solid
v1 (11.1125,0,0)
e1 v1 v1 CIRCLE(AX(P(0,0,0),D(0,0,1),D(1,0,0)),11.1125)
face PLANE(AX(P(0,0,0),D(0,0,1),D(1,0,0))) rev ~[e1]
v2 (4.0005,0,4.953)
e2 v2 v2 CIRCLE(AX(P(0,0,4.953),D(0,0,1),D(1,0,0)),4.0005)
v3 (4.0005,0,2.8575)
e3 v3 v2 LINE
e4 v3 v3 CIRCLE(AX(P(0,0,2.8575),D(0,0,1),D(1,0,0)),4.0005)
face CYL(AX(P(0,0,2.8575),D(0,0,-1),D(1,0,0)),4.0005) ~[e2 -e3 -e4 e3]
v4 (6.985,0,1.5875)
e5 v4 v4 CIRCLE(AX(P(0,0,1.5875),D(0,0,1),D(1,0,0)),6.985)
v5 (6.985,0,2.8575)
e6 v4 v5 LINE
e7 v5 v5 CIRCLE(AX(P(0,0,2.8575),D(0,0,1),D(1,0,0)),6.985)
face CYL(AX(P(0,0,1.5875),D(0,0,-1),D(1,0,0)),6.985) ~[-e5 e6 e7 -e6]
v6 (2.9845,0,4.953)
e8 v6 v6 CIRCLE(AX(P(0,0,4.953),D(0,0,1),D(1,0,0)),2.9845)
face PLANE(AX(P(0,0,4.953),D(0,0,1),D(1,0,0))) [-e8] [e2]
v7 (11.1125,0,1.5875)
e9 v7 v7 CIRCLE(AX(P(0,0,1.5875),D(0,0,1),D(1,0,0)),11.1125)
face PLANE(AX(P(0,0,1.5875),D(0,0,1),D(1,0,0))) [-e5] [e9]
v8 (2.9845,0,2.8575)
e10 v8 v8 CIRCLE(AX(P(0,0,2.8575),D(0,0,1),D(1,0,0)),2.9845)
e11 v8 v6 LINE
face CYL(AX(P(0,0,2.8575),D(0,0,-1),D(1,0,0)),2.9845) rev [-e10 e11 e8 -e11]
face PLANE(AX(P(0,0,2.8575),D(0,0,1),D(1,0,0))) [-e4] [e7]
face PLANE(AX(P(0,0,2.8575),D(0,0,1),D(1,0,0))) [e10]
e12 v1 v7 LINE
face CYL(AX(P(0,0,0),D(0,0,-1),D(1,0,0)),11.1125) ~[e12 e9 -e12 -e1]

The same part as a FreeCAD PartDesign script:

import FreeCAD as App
import Part
import Sketcher

V = App.Vector
Q = App.Units.Quantity

doc = App.newDocument("Part")
body = doc.addObject("PartDesign::Body", "Body")

sketch1 = body.newObject("Sketcher::SketchObject", "Sketch")
sketch1.AttachmentSupport = (doc.getObject("XY_Plane"), [""])
sketch1.MapMode = "FlatFace"
sketch1.addGeometry(Part.Circle(V(0, 0, 0), V(0, 0, 1), 11), False)
sketch1.addConstraint([
    Sketcher.Constraint("Coincident", 0, 3, -1, 1),
    Sketcher.Constraint("Diameter", 0, Q("0.875 in")),
])
pad1 = body.newObject("PartDesign::Pad", "Pad")
pad1.Profile = sketch1
pad1.Length = Q("0.0625 in")

sketch2 = body.newObject("Sketcher::SketchObject", "Sketch001")
sketch2.AttachmentSupport = (doc.getObject("XY_Plane"), [""])
sketch2.MapMode = "FlatFace"
sketch2.AttachmentOffset = App.Placement(V(0, 0, 0.0625 * 25.4), App.Rotation())
sketch2.addGeometry(Part.Circle(V(0, 0, 0), V(0, 0, 1), 7), False)
sketch2.addConstraint([
    Sketcher.Constraint("Coincident", 0, 3, -1, 1),
    Sketcher.Constraint("Diameter", 0, Q("0.55 in")),
])
pad2 = body.newObject("PartDesign::Pad", "Pad001")
pad2.Profile = sketch2
pad2.Length = Q("0.05 in")

sketch3 = body.newObject("Sketcher::SketchObject", "Sketch002")
sketch3.AttachmentSupport = (doc.getObject("XY_Plane"), [""])
sketch3.MapMode = "FlatFace"
sketch3.AttachmentOffset = App.Placement(V(0, 0, 0.1125 * 25.4), App.Rotation())
sketch3.addGeometry([
    Part.Circle(V(0, 0, 0), V(0, 0, 1), 4),
    Part.Circle(V(0, 0, 0), V(0, 0, 1), 3),
], False)
sketch3.addConstraint([
    Sketcher.Constraint("Coincident", 0, 3, -1, 1),
    Sketcher.Constraint("Coincident", 1, 3, -1, 1),
    Sketcher.Constraint("Diameter", 0, Q("0.315 in")),
    Sketcher.Constraint("Diameter", 1, Q("0.235 in")),
])
pad3 = body.newObject("PartDesign::Pad", "Pad002")
pad3.Profile = sketch3
pad3.Length = Q("0.0825 in")

doc.recompute()
